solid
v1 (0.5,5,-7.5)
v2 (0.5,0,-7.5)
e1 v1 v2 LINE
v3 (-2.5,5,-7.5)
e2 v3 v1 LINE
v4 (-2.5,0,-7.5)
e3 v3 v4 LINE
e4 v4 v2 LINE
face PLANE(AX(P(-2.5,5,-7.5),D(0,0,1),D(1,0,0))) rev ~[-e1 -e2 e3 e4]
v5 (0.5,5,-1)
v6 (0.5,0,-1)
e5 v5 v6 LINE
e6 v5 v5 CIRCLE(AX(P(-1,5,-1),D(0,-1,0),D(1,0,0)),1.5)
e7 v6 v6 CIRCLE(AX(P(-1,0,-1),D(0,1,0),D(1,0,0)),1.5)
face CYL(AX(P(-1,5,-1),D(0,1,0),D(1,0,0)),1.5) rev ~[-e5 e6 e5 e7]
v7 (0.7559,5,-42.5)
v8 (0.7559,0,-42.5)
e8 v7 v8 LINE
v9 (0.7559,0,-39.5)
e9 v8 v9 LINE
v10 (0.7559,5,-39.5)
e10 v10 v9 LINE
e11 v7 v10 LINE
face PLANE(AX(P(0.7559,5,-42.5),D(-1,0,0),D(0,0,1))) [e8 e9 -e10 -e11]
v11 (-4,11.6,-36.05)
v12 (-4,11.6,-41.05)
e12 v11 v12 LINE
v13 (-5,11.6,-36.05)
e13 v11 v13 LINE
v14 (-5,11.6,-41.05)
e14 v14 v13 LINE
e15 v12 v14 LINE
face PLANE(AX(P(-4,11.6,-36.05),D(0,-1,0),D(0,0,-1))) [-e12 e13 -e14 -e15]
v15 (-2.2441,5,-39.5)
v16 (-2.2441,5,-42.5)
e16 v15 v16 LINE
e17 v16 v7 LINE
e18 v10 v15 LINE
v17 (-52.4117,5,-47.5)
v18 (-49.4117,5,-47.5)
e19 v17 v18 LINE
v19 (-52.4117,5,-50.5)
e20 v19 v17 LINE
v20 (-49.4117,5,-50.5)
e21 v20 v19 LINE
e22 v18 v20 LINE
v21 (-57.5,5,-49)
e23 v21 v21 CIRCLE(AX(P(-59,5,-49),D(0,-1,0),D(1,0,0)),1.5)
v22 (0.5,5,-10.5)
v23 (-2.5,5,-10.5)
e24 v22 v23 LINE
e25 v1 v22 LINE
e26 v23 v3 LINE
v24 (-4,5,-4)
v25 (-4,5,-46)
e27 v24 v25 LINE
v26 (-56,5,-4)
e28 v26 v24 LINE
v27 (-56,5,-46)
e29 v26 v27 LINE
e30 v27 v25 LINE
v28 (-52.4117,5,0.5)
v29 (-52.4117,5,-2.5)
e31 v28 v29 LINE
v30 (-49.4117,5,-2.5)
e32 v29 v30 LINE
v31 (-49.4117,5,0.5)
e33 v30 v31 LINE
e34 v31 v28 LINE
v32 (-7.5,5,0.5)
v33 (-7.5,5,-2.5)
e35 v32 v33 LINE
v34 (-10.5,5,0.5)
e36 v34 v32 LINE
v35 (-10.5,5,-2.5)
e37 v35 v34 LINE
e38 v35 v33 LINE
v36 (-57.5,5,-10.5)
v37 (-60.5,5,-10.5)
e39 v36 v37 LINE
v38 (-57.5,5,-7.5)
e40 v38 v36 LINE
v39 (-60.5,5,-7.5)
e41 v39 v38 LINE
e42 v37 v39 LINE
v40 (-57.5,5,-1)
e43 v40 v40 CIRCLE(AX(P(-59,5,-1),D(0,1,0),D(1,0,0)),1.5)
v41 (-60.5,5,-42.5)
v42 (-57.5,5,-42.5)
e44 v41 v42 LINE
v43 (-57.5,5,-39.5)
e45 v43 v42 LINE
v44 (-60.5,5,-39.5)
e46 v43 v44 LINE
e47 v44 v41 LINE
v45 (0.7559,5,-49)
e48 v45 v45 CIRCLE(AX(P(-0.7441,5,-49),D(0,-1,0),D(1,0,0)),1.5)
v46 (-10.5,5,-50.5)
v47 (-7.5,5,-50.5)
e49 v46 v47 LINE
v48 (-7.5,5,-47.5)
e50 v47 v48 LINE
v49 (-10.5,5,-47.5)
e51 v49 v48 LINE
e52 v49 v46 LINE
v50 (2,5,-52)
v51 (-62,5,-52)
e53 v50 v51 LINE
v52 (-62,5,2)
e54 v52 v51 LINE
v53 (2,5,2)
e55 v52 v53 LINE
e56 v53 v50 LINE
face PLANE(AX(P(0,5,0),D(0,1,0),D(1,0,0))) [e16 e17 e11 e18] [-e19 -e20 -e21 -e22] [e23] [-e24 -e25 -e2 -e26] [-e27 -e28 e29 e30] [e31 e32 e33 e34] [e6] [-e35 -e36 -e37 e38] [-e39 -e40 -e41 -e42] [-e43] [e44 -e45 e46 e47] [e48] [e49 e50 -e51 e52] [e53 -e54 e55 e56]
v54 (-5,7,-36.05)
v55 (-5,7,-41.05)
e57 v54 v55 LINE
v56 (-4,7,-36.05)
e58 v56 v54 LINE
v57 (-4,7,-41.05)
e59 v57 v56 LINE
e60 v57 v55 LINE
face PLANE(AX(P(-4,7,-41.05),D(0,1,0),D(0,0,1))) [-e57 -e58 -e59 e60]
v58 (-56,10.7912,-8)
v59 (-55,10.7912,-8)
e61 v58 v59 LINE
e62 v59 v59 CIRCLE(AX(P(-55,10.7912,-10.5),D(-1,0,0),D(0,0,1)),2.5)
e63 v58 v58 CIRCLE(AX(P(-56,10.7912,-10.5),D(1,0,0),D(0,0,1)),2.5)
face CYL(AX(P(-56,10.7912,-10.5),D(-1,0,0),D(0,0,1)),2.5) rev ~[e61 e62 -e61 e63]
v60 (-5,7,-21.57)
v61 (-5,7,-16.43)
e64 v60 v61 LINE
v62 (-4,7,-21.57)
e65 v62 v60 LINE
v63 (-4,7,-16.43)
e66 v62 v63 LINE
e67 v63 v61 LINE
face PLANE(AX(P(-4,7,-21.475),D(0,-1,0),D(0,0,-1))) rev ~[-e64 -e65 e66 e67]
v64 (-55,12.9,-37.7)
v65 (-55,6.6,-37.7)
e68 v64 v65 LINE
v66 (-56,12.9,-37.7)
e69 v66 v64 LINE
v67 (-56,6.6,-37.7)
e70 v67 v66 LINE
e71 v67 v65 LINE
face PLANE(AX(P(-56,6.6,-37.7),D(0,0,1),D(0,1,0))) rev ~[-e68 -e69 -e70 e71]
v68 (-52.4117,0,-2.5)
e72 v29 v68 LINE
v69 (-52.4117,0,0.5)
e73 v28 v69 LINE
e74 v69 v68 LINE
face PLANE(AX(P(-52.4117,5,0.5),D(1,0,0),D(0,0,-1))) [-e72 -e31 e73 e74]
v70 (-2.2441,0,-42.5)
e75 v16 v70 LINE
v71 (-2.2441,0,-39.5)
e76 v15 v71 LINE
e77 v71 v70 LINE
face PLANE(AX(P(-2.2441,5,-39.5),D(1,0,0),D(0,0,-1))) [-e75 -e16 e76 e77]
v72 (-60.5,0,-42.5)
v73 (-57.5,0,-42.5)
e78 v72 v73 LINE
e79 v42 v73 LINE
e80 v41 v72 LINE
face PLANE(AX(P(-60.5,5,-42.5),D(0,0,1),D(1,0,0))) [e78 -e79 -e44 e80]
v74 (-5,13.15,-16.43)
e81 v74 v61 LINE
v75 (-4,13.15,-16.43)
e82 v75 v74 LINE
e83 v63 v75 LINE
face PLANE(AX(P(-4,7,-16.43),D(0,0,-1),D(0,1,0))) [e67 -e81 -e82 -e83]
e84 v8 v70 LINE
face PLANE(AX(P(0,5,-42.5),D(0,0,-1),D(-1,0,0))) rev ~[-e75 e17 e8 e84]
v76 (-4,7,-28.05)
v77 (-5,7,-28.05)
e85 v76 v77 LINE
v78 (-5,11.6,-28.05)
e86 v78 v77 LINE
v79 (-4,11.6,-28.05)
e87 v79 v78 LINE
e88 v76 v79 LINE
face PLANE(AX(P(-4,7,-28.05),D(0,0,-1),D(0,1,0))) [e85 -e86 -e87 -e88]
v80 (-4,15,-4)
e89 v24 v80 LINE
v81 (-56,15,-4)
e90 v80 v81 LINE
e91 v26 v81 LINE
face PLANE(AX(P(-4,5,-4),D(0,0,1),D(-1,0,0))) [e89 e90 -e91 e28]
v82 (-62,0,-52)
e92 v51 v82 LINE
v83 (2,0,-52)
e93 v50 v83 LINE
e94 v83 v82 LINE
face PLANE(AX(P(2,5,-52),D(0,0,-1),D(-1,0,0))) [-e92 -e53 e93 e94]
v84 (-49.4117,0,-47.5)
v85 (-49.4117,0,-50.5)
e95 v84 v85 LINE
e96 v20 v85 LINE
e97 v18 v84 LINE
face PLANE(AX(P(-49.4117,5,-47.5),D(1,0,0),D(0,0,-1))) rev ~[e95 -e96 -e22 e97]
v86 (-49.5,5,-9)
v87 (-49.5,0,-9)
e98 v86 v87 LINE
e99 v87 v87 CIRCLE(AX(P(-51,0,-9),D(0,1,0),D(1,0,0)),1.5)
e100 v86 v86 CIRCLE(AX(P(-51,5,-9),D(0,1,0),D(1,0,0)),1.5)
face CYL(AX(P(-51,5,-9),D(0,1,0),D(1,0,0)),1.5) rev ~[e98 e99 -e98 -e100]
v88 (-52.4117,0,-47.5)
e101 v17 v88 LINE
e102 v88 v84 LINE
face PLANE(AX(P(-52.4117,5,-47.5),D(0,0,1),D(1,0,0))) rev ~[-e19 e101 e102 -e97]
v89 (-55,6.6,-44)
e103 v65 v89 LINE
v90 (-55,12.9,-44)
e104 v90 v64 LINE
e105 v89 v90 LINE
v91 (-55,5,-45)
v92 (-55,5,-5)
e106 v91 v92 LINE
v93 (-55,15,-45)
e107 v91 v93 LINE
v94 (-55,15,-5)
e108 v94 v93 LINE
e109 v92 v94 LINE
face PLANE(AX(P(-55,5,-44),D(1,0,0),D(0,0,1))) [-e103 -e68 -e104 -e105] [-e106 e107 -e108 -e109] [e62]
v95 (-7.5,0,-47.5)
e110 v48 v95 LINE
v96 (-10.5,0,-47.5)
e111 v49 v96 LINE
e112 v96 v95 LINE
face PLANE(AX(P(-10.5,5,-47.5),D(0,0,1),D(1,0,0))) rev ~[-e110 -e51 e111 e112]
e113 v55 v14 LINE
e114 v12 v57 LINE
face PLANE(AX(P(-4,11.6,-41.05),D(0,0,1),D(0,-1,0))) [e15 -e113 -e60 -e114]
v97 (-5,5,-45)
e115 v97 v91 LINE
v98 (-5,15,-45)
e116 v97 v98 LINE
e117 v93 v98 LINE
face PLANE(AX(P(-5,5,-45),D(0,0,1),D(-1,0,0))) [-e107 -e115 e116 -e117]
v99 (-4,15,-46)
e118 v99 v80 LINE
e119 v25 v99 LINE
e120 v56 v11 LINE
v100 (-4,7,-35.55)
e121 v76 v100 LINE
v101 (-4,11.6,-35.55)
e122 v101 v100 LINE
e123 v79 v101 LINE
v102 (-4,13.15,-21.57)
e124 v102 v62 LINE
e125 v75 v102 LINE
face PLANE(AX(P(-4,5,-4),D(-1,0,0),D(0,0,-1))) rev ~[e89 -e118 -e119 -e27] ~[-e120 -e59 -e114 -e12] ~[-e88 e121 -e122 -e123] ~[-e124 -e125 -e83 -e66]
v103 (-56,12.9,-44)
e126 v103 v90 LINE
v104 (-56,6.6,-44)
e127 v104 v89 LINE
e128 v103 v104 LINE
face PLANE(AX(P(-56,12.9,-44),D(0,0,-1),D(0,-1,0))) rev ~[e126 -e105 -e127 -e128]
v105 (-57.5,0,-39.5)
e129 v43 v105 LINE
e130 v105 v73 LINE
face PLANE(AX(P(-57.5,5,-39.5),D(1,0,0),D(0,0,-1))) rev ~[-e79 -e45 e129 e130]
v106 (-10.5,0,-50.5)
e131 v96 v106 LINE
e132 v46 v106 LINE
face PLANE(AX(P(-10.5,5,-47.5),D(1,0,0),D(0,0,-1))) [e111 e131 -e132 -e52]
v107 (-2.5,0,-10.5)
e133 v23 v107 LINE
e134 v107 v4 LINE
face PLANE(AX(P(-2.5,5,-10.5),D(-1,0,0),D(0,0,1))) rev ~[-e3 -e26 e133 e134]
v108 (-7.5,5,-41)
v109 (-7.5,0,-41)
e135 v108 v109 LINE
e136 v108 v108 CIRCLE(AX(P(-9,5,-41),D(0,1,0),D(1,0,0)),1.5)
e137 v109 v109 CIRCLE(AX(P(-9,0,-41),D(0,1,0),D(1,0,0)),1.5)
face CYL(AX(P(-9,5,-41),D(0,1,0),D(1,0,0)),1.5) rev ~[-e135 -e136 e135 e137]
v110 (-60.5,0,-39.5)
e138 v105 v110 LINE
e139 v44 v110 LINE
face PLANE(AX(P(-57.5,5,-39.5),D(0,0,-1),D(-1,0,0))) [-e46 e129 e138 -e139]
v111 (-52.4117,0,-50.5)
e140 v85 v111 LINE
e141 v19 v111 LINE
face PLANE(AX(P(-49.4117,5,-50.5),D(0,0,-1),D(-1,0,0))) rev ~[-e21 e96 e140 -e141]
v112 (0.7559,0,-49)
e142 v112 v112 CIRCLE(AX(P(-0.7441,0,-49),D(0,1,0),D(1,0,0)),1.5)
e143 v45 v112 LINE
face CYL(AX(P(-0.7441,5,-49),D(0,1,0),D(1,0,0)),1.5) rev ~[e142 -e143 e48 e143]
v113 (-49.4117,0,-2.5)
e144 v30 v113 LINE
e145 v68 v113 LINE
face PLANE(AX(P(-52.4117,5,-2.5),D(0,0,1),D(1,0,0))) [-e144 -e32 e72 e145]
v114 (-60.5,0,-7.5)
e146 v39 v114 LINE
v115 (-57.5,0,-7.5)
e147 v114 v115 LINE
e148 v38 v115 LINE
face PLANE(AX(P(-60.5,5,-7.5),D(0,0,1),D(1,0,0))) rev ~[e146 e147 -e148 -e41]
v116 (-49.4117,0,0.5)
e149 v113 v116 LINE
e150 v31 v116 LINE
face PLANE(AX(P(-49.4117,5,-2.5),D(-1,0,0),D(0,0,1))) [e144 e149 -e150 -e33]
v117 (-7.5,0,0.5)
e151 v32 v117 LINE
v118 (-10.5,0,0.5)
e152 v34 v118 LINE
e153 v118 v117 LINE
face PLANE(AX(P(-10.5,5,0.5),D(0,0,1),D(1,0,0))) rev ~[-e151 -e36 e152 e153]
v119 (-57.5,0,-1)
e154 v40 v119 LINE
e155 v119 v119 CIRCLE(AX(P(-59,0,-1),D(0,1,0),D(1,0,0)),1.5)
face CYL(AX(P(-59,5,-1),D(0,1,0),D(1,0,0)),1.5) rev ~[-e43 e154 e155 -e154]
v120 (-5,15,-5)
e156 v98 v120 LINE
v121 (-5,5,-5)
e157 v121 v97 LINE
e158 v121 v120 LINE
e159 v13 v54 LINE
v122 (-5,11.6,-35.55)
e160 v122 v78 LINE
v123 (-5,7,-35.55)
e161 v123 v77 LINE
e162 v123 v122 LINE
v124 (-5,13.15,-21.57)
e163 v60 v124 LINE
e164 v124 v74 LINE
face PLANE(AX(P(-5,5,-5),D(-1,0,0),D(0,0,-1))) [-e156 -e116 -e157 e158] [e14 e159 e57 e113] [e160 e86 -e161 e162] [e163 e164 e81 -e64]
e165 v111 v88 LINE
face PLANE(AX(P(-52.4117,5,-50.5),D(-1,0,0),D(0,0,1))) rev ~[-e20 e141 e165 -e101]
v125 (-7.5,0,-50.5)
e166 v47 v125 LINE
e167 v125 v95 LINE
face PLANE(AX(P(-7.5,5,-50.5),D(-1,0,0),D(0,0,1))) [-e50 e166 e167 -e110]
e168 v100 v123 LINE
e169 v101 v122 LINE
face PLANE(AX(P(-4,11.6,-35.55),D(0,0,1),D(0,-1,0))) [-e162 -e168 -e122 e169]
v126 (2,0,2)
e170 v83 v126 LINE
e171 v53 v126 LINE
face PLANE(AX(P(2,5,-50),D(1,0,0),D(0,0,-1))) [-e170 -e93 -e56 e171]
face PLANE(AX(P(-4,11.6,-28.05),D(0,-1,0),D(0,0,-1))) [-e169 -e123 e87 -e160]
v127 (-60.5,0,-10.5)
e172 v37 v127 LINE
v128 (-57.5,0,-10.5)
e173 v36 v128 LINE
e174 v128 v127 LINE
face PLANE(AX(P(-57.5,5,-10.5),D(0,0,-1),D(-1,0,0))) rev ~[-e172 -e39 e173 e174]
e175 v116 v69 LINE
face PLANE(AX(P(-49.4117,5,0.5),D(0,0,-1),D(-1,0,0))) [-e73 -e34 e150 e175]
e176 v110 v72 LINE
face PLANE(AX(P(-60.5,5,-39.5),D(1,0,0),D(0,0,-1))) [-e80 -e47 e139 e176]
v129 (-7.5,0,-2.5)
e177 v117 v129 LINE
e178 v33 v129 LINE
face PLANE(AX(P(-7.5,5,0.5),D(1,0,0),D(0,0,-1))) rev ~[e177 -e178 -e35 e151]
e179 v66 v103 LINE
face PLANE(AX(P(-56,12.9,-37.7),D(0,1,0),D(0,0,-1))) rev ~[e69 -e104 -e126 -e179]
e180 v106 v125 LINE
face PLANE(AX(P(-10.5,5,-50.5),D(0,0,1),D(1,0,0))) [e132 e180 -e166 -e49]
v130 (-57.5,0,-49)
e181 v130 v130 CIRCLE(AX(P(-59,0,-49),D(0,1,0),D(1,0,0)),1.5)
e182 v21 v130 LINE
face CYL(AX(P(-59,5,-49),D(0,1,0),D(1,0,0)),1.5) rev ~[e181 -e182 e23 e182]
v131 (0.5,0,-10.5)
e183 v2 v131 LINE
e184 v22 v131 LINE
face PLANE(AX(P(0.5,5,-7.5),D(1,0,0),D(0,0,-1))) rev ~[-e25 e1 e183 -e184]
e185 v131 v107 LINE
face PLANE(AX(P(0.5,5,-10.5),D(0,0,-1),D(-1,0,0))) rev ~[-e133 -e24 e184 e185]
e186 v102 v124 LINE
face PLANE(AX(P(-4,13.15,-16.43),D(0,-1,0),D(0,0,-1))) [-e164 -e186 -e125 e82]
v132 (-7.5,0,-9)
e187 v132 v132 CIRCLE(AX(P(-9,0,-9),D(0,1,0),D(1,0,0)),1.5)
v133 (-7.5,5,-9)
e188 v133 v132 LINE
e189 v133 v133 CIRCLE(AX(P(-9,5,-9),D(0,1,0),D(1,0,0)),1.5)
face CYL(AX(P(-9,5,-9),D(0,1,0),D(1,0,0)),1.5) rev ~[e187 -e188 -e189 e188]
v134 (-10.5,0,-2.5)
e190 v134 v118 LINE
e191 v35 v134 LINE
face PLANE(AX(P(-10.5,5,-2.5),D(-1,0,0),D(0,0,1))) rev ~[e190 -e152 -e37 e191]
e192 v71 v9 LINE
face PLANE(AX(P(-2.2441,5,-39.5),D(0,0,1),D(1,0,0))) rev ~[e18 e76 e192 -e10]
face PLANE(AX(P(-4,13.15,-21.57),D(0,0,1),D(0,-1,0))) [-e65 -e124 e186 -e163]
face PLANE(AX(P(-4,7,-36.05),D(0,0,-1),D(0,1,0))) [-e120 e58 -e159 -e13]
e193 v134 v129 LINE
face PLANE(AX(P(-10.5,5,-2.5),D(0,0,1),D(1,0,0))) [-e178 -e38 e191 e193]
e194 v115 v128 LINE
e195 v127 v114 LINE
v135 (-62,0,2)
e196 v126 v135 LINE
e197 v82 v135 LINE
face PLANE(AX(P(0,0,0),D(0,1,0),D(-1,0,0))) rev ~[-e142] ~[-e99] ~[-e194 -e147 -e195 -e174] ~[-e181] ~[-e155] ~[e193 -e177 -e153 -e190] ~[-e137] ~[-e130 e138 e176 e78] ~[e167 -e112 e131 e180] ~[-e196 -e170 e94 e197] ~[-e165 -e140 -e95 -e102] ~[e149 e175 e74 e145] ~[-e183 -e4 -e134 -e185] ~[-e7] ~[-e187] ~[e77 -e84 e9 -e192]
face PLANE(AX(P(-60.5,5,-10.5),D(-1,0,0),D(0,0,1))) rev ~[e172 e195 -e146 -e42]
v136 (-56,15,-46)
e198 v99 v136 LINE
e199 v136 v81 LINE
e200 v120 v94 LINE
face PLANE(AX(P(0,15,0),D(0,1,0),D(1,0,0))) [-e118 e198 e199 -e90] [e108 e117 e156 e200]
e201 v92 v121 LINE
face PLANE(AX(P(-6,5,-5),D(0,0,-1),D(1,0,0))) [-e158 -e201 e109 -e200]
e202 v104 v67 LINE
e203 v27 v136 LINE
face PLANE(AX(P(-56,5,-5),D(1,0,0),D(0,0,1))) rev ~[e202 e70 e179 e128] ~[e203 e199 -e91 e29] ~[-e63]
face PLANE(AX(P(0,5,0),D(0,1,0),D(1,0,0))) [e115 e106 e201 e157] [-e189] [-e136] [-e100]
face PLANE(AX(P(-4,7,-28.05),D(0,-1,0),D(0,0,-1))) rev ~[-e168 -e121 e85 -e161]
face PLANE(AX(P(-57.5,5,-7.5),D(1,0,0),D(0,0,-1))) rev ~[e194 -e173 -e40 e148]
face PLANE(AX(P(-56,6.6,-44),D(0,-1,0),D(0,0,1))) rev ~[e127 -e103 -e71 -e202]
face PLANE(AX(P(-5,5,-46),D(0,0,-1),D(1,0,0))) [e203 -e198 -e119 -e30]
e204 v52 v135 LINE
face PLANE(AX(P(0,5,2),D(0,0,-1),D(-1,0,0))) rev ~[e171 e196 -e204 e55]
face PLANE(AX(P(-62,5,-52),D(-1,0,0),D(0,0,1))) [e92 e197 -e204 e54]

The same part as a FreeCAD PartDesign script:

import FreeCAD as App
import Part
import Sketcher
Q = App.Units.Quantity

doc = App.newDocument("Part")
body = doc.addObject("PartDesign::Body", "Body")

# Sketch on XZ plane
sketch1 = body.newObject("Sketcher::SketchObject", "Sketch")
sketch1.AttachmentSupport = (doc.getObject("XZ_Plane"), [""])
sketch1.MapMode = "FlatFace"
sketch1.addGeometry([
    Part.LineSegment(App.Vector(0, 0, 0), App.Vector(0, -50, 0)),
    Part.LineSegment(App.Vector(0, -50, 0), App.Vector(-60, -50, 0)),
    Part.LineSegment(App.Vector(-60, -50, 0), App.Vector(-60, 0, 0)),
    Part.LineSegment(App.Vector(-60, 0, 0), App.Vector(0, 0, 0)),
], False)
sketch1.addConstraint([
    Sketcher.Constraint("Coincident", 0, 2, 1, 1),
    Sketcher.Constraint("Coincident", 1, 2, 2, 1),
    Sketcher.Constraint("Coincident", 2, 2, 3, 1),
    Sketcher.Constraint("Coincident", 3, 2, 0, 1),
    Sketcher.Constraint("Vertical", 0),
    Sketcher.Constraint("Horizontal", 1),
    Sketcher.Constraint("Vertical", 2),
    Sketcher.Constraint("Horizontal", 3),
    Sketcher.Constraint("Coincident", 3, 2, -1, 1),
    Sketcher.Constraint("DistanceX", 1, 2, 1, 1, Q("60 mm")),
    Sketcher.Constraint("DistanceY", 0, 2, 0, 1, Q("50 mm")),
])
pad1 = body.newObject("PartDesign::Pad", "Pad")
pad1.Profile = sketch1
pad1.Length = 5
pad1.Reversed = True

# Sketch on XZ plane
sketch2 = body.newObject("Sketcher::SketchObject", "Sketch001")
sketch2.AttachmentSupport = (doc.getObject("XZ_Plane"), [""])
sketch2.MapMode = "FlatFace"
sketch2.AttachmentOffset = App.Placement(App.Vector(0, 0, -5), App.Rotation())
sketch2.addGeometry([
    Part.LineSegment(App.Vector(-62, -52, 0), App.Vector(-62, 2, 0)),  # 0
    Part.LineSegment(App.Vector(-62, 2, 0), App.Vector(2, 2, 0)),  # 1
    Part.LineSegment(App.Vector(2, 2, 0), App.Vector(2, -52, 0)),  # 2
    Part.LineSegment(App.Vector(2, -52, 0), App.Vector(-62, -52, 0)),  # 3
    Part.LineSegment(App.Vector(0, -50, 0), App.Vector(0, 0, 0)),  # 4
    Part.LineSegment(App.Vector(0, 0, 0), App.Vector(-60, 0, 0)),  # 5
    Part.LineSegment(App.Vector(-60, 0, 0), App.Vector(-60, -50, 0)),  # 6
    Part.LineSegment(App.Vector(-60, -50, 0), App.Vector(0, -50, 0)),  # 7
], False)
sketch2.addConstraint([
    Sketcher.Constraint("Coincident", 0, 2, 1, 1),
    Sketcher.Constraint("Coincident", 1, 2, 2, 1),
    Sketcher.Constraint("Coincident", 2, 2, 3, 1),
    Sketcher.Constraint("Coincident", 3, 2, 0, 1),
    Sketcher.Constraint("Coincident", 4, 2, 5, 1),
    Sketcher.Constraint("Coincident", 5, 2, 6, 1),
    Sketcher.Constraint("Coincident", 6, 2, 7, 1),
    Sketcher.Constraint("Coincident", 7, 2, 4, 1),
    Sketcher.Constraint("Vertical", 0),
    Sketcher.Constraint("Horizontal", 1),
    Sketcher.Constraint("Vertical", 2),
    Sketcher.Constraint("Horizontal", 3),
    Sketcher.Constraint("Vertical", 4),
    Sketcher.Constraint("Horizontal", 5),
    Sketcher.Constraint("Vertical", 6),
    Sketcher.Constraint("Horizontal", 7),
    Sketcher.Constraint("Coincident", 4, 2, -1, 1),
    Sketcher.Constraint("DistanceX", 1, 1, 1, 2, Q("64 mm")),
    Sketcher.Constraint("DistanceY", -1, 1, 0, 2, Q("2 mm")),
    Sketcher.Constraint("DistanceX", -1, 1, 1, 2, Q("2 mm")),
    Sketcher.Constraint("DistanceX", 0, 2, 5, 2, Q("2 mm")),
    Sketcher.Constraint("DistanceY", 3, 2, 6, 2, Q("2 mm")),
    Sketcher.Constraint("DistanceY", 0, 1, 0, 2, Q("54 mm")),
])
pad2 = body.newObject("PartDesign::Pad", "Pad001")
pad2.Profile = sketch2
pad2.Length = 5

# Sketch on XZ plane
sketch3 = body.newObject("Sketcher::SketchObject", "Sketch002")
sketch3.AttachmentSupport = (doc.getObject("XZ_Plane"), [""])
sketch3.MapMode = "FlatFace"
sketch3.AttachmentOffset = App.Placement(App.Vector(0, 0, -5), App.Rotation())
sketch3.addGeometry([
    Part.LineSegment(App.Vector(-4, -4, 0), App.Vector(-4, -46, 0)),  # 0
    Part.LineSegment(App.Vector(-4, -46, 0), App.Vector(-56, -46, 0)),  # 1
    Part.LineSegment(App.Vector(-56, -46, 0), App.Vector(-56, -4, 0)),  # 2
    Part.LineSegment(App.Vector(-56, -4, 0), App.Vector(-4, -4, 0)),  # 3
    Part.LineSegment(App.Vector(-5, -5, 0), App.Vector(-55, -5, 0)),  # 4
    Part.LineSegment(App.Vector(-55, -5, 0), App.Vector(-55, -45, 0)),  # 5
    Part.LineSegment(App.Vector(-55, -45, 0), App.Vector(-5, -45, 0)),  # 6
    Part.LineSegment(App.Vector(-5, -45, 0), App.Vector(-5, -5, 0)),  # 7
], False)
sketch3.addConstraint([
    Sketcher.Constraint("Coincident", 0, 2, 1, 1),
    Sketcher.Constraint("Coincident", 1, 2, 2, 1),
    Sketcher.Constraint("Coincident", 2, 2, 3, 1),
    Sketcher.Constraint("Coincident", 3, 2, 0, 1),
    Sketcher.Constraint("Coincident", 4, 2, 5, 1),
    Sketcher.Constraint("Coincident", 5, 2, 6, 1),
    Sketcher.Constraint("Coincident", 6, 2, 7, 1),
    Sketcher.Constraint("Coincident", 7, 2, 4, 1),
    Sketcher.Constraint("Vertical", 0),
    Sketcher.Constraint("Horizontal", 1),
    Sketcher.Constraint("Vertical", 2),
    Sketcher.Constraint("Horizontal", 3),
    Sketcher.Constraint("Horizontal", 4),
    Sketcher.Constraint("Vertical", 5),
    Sketcher.Constraint("Horizontal", 6),
    Sketcher.Constraint("Vertical", 7),
    Sketcher.Constraint("DistanceX", 4, 2, 4, 1, Q("50 mm")),
    Sketcher.Constraint("DistanceY", 5, 2, 5, 1, Q("40 mm")),
    Sketcher.Constraint("DistanceY", 1, 2, 4, 2, Q("41 mm")),
    Sketcher.Constraint("DistanceX", 4, 2, 3, 2, Q("51 mm")),
    Sketcher.Constraint("DistanceY", 5, 2, 2, 2, Q("41 mm")),
    Sketcher.Constraint("DistanceX", 1, 2, 6, 2, Q("51 mm")),
    Sketcher.Constraint("DistanceX", 0, 2, -1, 1, Q("4 mm")),
    Sketcher.Constraint("DistanceY", 0, 2, -1, 1, Q("46 mm")),
])
pad3 = body.newObject("PartDesign::Pad", "Pad002")
pad3.Profile = sketch3
pad3.Length = 10
pad3.Reversed = True

# Sketch on XZ plane
sketch4 = body.newObject("Sketcher::SketchObject", "Sketch003")
sketch4.AttachmentSupport = (doc.getObject("XZ_Plane"), [""])
sketch4.MapMode = "FlatFace"
sketch4.AttachmentOffset = App.Placement(App.Vector(0, 0, -5), App.Rotation())
sketch4.addGeometry([
    Part.Circle(App.Vector(-51, -9, 0), App.Vector(0, 0, 1), 1.5),
    Part.Circle(App.Vector(-9, -41, 0), App.Vector(0, 0, 1), 1.5),
    Part.Circle(App.Vector(-9, -9, 0), App.Vector(0, 0, 1), 1.5),
], False)
sketch4.addConstraint([
    Sketcher.Constraint("Equal", 0, 1),
    Sketcher.Constraint("Equal", 1, 2),
    Sketcher.Constraint("Horizontal", 0, 3, 2, 3),
    Sketcher.Constraint("Vertical", 1, 3, 2, 3),
    Sketcher.Constraint("Diameter", 0, Q("3 mm")),
    Sketcher.Constraint("DistanceX", 0, 3, -1, 1, Q("51 mm")),
    Sketcher.Constraint("DistanceY", 0, 3, -1, 1, Q("9 mm")),
    Sketcher.Constraint("DistanceX", 1, 3, -1, 1, Q("9 mm")),
    Sketcher.Constraint("DistanceY", 1, 3, -1, 1, Q("41 mm")),
])
pocket1 = body.newObject("PartDesign::Pocket", "Pocket")
pocket1.Profile = sketch4
pocket1.Length = 10
pocket1.Reversed = True

# Sketch on YZ plane
sketch5 = body.newObject("Sketcher::SketchObject", "Sketch004")
sketch5.AttachmentSupport = (doc.getObject("YZ_Plane"), [""])
sketch5.MapMode = "FlatFace"
sketch5.AttachmentOffset = App.Placement(App.Vector(0, 0, -4), App.Rotation())
sketch5.addGeometry([
    Part.LineSegment(App.Vector(13.15, -16.43, 0), App.Vector(7, -16.43, 0)),  # 0
    Part.LineSegment(App.Vector(7, -16.43, 0), App.Vector(7, -21.57, 0)),  # 1
    Part.LineSegment(App.Vector(7, -21.57, 0), App.Vector(13.15, -21.57, 0)),  # 2
    Part.LineSegment(App.Vector(13.15, -21.57, 0), App.Vector(13.15, -16.43, 0)),  # 3
    Part.LineSegment(App.Vector(11.6, -28.05, 0), App.Vector(7, -28.05, 0)),  # 4
    Part.LineSegment(App.Vector(7, -28.05, 0), App.Vector(7, -35.55, 0)),  # 5
    Part.LineSegment(App.Vector(7, -35.55, 0), App.Vector(11.6, -35.55, 0)),  # 6
    Part.LineSegment(App.Vector(11.6, -35.55, 0), App.Vector(11.6, -28.05, 0)),  # 7
    Part.LineSegment(App.Vector(11.6, -36.05, 0), App.Vector(7, -36.05, 0)),  # 8
    Part.LineSegment(App.Vector(7, -36.05, 0), App.Vector(7, -41.05, 0)),  # 9
    Part.LineSegment(App.Vector(7, -41.05, 0), App.Vector(11.6, -41.05, 0)),  # 10
    Part.LineSegment(App.Vector(11.6, -41.05, 0), App.Vector(11.6, -36.05, 0)),  # 11
], False)
sketch5.addConstraint([
    Sketcher.Constraint("Coincident", 0, 2, 1, 1),
    Sketcher.Constraint("Coincident", 1, 2, 2, 1),
    Sketcher.Constraint("Coincident", 2, 2, 3, 1),
    Sketcher.Constraint("Coincident", 3, 2, 0, 1),
    Sketcher.Constraint("Coincident", 4, 2, 5, 1),
    Sketcher.Constraint("Coincident", 5, 2, 6, 1),
    Sketcher.Constraint("Coincident", 6, 2, 7, 1),
    Sketcher.Constraint("Coincident", 7, 2, 4, 1),
    Sketcher.Constraint("Coincident", 8, 2, 9, 1),
    Sketcher.Constraint("Coincident", 9, 2, 10, 1),
    Sketcher.Constraint("Coincident", 10, 2, 11, 1),
    Sketcher.Constraint("Coincident", 11, 2, 8, 1),
    Sketcher.Constraint("Horizontal", 0),
    Sketcher.Constraint("Vertical", 1),
    Sketcher.Constraint("Horizontal", 2),
    Sketcher.Constraint("Vertical", 3),
    Sketcher.Constraint("Horizontal", 4),
    Sketcher.Constraint("Vertical", 5),
    Sketcher.Constraint("Horizontal", 6),
    Sketcher.Constraint("Vertical", 7),
    Sketcher.Constraint("Horizontal", 8),
    Sketcher.Constraint("Vertical", 9),
    Sketcher.Constraint("Horizontal", 10),
    Sketcher.Constraint("Vertical", 11),
    Sketcher.Constraint("Vertical", 1, 2, 4, 2),
    Sketcher.Constraint("Vertical", 5, 2, 8, 2),
    Sketcher.Constraint("Vertical", 7, 2, 10, 2),
    Sketcher.Constraint("DistanceY", 9, 2, 9, 1, Q("5 mm")),
    Sketcher.Constraint("DistanceY", 5, 2, 5, 1, Q("7.5 mm")),
    Sketcher.Constraint("DistanceY", 8, 2, 5, 2, Q("0.5 mm")),
    Sketcher.Constraint("DistanceX", 4, 2, 4, 1, Q("4.6 mm")),
    Sketcher.Constraint("DistanceX", -1, 1, 0, 2, Q("7 mm")),
    Sketcher.Constraint("DistanceX", 0, 2, 0, 1, Q("6.15 mm")),
    Sketcher.Constraint("DistanceY", 1, 2, 1, 1, Q("5.14 mm")),
    Sketcher.Constraint("DistanceY", 0, 2, -1, 1, Q("16.43 mm")),
    Sketcher.Constraint("DistanceY", 4, 2, -1, 1, Q("28.05 mm")),
])
pocket2 = body.newObject("PartDesign::Pocket", "Pocket001")
pocket2.Profile = sketch5
pocket2.Length = 10

# Sketch on YZ plane
sketch6 = body.newObject("Sketcher::SketchObject", "Sketch005")
sketch6.AttachmentSupport = (doc.getObject("YZ_Plane"), [""])
sketch6.MapMode = "FlatFace"
sketch6.AttachmentOffset = App.Placement(App.Vector(0, 0, -56), App.Rotation())
sketch6.addGeometry([
    Part.LineSegment(App.Vector(12.9, -44, 0), App.Vector(6.6, -44, 0)),
    Part.LineSegment(App.Vector(6.6, -44, 0), App.Vector(6.6, -37.7, 0)),
    Part.LineSegment(App.Vector(6.6, -37.7, 0), App.Vector(12.9, -37.7, 0)),
    Part.LineSegment(App.Vector(12.9, -37.7, 0), App.Vector(12.9, -44, 0)),
], False)
sketch6.addConstraint([
    Sketcher.Constraint("Coincident", 0, 2, 1, 1),
    Sketcher.Constraint("Coincident", 1, 2, 2, 1),
    Sketcher.Constraint("Coincident", 2, 2, 3, 1),
    Sketcher.Constraint("Coincident", 3, 2, 0, 1),
    Sketcher.Constraint("Horizontal", 0),
    Sketcher.Constraint("Vertical", 1),
    Sketcher.Constraint("Horizontal", 2),
    Sketcher.Constraint("Vertical", 3),
    Sketcher.Constraint("Equal", 2, 1),
    Sketcher.Constraint("DistanceX", 0, 2, 0, 1, Q("6.3 mm")),
    Sketcher.Constraint("DistanceY", 0, 2, -1, 1, Q("44 mm")),
    Sketcher.Constraint("DistanceX", -1, 1, 0, 2, Q("6.6 mm")),
])
pocket3 = body.newObject("PartDesign::Pocket", "Pocket002")
pocket3.Profile = sketch6
pocket3.Length = 10
pocket3.Reversed = True

# Sketch on YZ plane
sketch7 = body.newObject("Sketcher::SketchObject", "Sketch006")
sketch7.AttachmentSupport = (doc.getObject("YZ_Plane"), [""])
sketch7.MapMode = "FlatFace"
sketch7.AttachmentOffset = App.Placement(App.Vector(0, 0, -56), App.Rotation())
sketch7.addGeometry([
    Part.LineSegment(App.Vector(12.9, -44, 0), App.Vector(6.6, -44, 0)),
    Part.LineSegment(App.Vector(6.6, -44, 0), App.Vector(6.6, -37.7, 0)),
    Part.LineSegment(App.Vector(6.6, -37.7, 0), App.Vector(12.9, -37.7, 0)),
    Part.LineSegment(App.Vector(12.9, -37.7, 0), App.Vector(12.9, -44, 0)),
], False)
sketch7.addConstraint([
    Sketcher.Constraint("Coincident", 0, 2, 1, 1),
    Sketcher.Constraint("Coincident", 1, 2, 2, 1),
    Sketcher.Constraint("Coincident", 2, 2, 3, 1),
    Sketcher.Constraint("Coincident", 3, 2, 0, 1),
    Sketcher.Constraint("Horizontal", 0),
    Sketcher.Constraint("Vertical", 1),
    Sketcher.Constraint("Horizontal", 2),
    Sketcher.Constraint("Vertical", 3),
    Sketcher.Constraint("Equal", 2, 1),
    Sketcher.Constraint("DistanceX", 0, 2, 0, 1, Q("6.3 mm")),
    Sketcher.Constraint("DistanceY", 0, 2, -1, 1, Q("44 mm")),
    Sketcher.Constraint("DistanceX", -1, 1, 0, 2, Q("6.6 mm")),
])
pocket4 = body.newObject("PartDesign::Pocket", "Pocket003")
pocket4.Profile = sketch7
pocket4.Length = 10
pocket4.Reversed = True

# Sketch on YZ plane
sketch8 = body.newObject("Sketcher::SketchObject", "Sketch007")
sketch8.AttachmentSupport = (doc.getObject("YZ_Plane"), [""])
sketch8.MapMode = "FlatFace"
sketch8.AttachmentOffset = App.Placement(App.Vector(0, 0, -56), App.Rotation())
sketch8.addGeometry(Part.Circle(App.Vector(10.7912, -10.5, 0), App.Vector(0, 0, 1), 2.5), False)
sketch8.addConstraint([
    Sketcher.Constraint("Diameter", 0, Q("5 mm")),
    Sketcher.Constraint("DistanceY", 0, 3, -1, 1, Q("10.5 mm")),
    Sketcher.Constraint("DistanceX", -1, 1, 0, 3, Q("10.7912 mm")),
])
pocket5 = body.newObject("PartDesign::Pocket", "Pocket004")
pocket5.Profile = sketch8
pocket5.Length = 10
pocket5.Reversed = True

# Sketch on XZ plane
sketch9 = body.newObject("Sketcher::SketchObject", "Sketch008")
sketch9.AttachmentSupport = (doc.getObject("XZ_Plane"), [""])
sketch9.MapMode = "FlatFace"
sketch9.AttachmentOffset = App.Placement(App.Vector(0, 0, -5), App.Rotation())
sketch9.addGeometry([
    Part.Circle(App.Vector(-0.7441, -49, 0), App.Vector(0, 0, 1), 1.5),  # 0
    Part.Circle(App.Vector(-1, -1, 0), App.Vector(0, 0, 1), 1.5),  # 1
    Part.Circle(App.Vector(-59, -49, 0), App.Vector(0, 0, 1), 1.5),  # 2
    Part.LineSegment(App.Vector(-57.5, -39.5, 0), App.Vector(-57.5, -42.5, 0)),  # 3
    Part.LineSegment(App.Vector(-57.5, -42.5, 0), App.Vector(-60.5, -42.5, 0)),  # 4
    Part.LineSegment(App.Vector(-60.5, -42.5, 0), App.Vector(-60.5, -39.5, 0)),  # 5
    Part.LineSegment(App.Vector(-60.5, -39.5, 0), App.Vector(-57.5, -39.5, 0)),  # 6
    Part.LineSegment(App.Vector(-52.4117, -50.5, 0), App.Vector(-52.4117, -47.5, 0)),  # 7
    Part.LineSegment(App.Vector(-52.4117, -47.5, 0), App.Vector(-49.4117, -47.5, 0)),  # 8
    Part.LineSegment(App.Vector(-49.4117, -47.5, 0), App.Vector(-49.4117, -50.5, 0)),  # 9
    Part.LineSegment(App.Vector(-49.4117, -50.5, 0), App.Vector(-52.4117, -50.5, 0)),  # 10
    Part.LineSegment(App.Vector(-57.5, -7.5, 0), App.Vector(-57.5, -10.5, 0)),  # 11
    Part.LineSegment(App.Vector(-57.5, -10.5, 0), App.Vector(-60.5, -10.5, 0)),  # 12
    Part.LineSegment(App.Vector(-60.5, -10.5, 0), App.Vector(-60.5, -7.5, 0)),  # 13
    Part.LineSegment(App.Vector(-60.5, -7.5, 0), App.Vector(-57.5, -7.5, 0)),  # 14
    Part.LineSegment(App.Vector(-49.4117, -2.5, 0), App.Vector(-52.4117, -2.5, 0)),  # 15
    Part.LineSegment(App.Vector(-52.4117, -2.5, 0), App.Vector(-52.4117, 0.5, 0)),  # 16
    Part.LineSegment(App.Vector(-52.4117, 0.5, 0), App.Vector(-49.4117, 0.5, 0)),  # 17
    Part.LineSegment(App.Vector(-49.4117, 0.5, 0), App.Vector(-49.4117, -2.5, 0)),  # 18
    Part.Circle(App.Vector(-59, -1, 0), App.Vector(0, 0, 1), 1.5),  # 19
    Part.LineSegment(App.Vector(0.5, -10.5, 0), App.Vector(-2.5, -10.5, 0)),  # 20
    Part.LineSegment(App.Vector(-2.5, -10.5, 0), App.Vector(-2.5, -7.5, 0)),  # 21
    Part.LineSegment(App.Vector(-2.5, -7.5, 0), App.Vector(0.5, -7.5, 0)),  # 22
    Part.LineSegment(App.Vector(0.5, -7.5, 0), App.Vector(0.5, -10.5, 0)),  # 23
    Part.LineSegment(App.Vector(-7.5, 0.5, 0), App.Vector(-7.5, -2.5, 0)),  # 24
    Part.LineSegment(App.Vector(-7.5, -2.5, 0), App.Vector(-10.5, -2.5, 0)),  # 25
    Part.LineSegment(App.Vector(-10.5, -2.5, 0), App.Vector(-10.5, 0.5, 0)),  # 26
    Part.LineSegment(App.Vector(-10.5, 0.5, 0), App.Vector(-7.5, 0.5, 0)),  # 27
    Part.LineSegment(App.Vector(-2.2441, -42.5, 0), App.Vector(-2.2441, -39.5, 0)),  # 28
    Part.LineSegment(App.Vector(-2.2441, -39.5, 0), App.Vector(0.7559, -39.5, 0)),  # 29
    Part.LineSegment(App.Vector(0.7559, -39.5, 0), App.Vector(0.7559, -42.5, 0)),  # 30
    Part.LineSegment(App.Vector(0.7559, -42.5, 0), App.Vector(-2.2441, -42.5, 0)),  # 31
    Part.LineSegment(App.Vector(-10.5, -47.5, 0), App.Vector(-7.5, -47.5, 0)),  # 32
    Part.LineSegment(App.Vector(-7.5, -47.5, 0), App.Vector(-7.5, -50.5, 0)),  # 33
    Part.LineSegment(App.Vector(-7.5, -50.5, 0), App.Vector(-10.5, -50.5, 0)),  # 34
    Part.LineSegment(App.Vector(-10.5, -50.5, 0), App.Vector(-10.5, -47.5, 0)),  # 35
], False)
sketch9.addConstraint([
    Sketcher.Constraint("Coincident", 3, 2, 4, 1),
    Sketcher.Constraint("Coincident", 4, 2, 5, 1),
    Sketcher.Constraint("Coincident", 5, 2, 6, 1),
    Sketcher.Constraint("Coincident", 6, 2, 3, 1),
    Sketcher.Constraint("Coincident", 7, 2, 8, 1),
    Sketcher.Constraint("Coincident", 8, 2, 9, 1),
    Sketcher.Constraint("Coincident", 9, 2, 10, 1),
    Sketcher.Constraint("Coincident", 10, 2, 7, 1),
    Sketcher.Constraint("Coincident", 11, 2, 12, 1),
    Sketcher.Constraint("Coincident", 12, 2, 13, 1),
    Sketcher.Constraint("Coincident", 13, 2, 14, 1),
    Sketcher.Constraint("Coincident", 14, 2, 11, 1),
    Sketcher.Constraint("Coincident", 15, 2, 16, 1),
    Sketcher.Constraint("Coincident", 16, 2, 17, 1),
    Sketcher.Constraint("Coincident", 17, 2, 18, 1),
    Sketcher.Constraint("Coincident", 18, 2, 15, 1),
    Sketcher.Constraint("Coincident", 20, 2, 21, 1),
    Sketcher.Constraint("Coincident", 21, 2, 22, 1),
    Sketcher.Constraint("Coincident", 22, 2, 23, 1),
    Sketcher.Constraint("Coincident", 23, 2, 20, 1),
    Sketcher.Constraint("Coincident", 24, 2, 25, 1),
    Sketcher.Constraint("Coincident", 25, 2, 26, 1),
    Sketcher.Constraint("Coincident", 26, 2, 27, 1),
    Sketcher.Constraint("Coincident", 27, 2, 24, 1),
    Sketcher.Constraint("Coincident", 28, 2, 29, 1),
    Sketcher.Constraint("Coincident", 29, 2, 30, 1),
    Sketcher.Constraint("Coincident", 30, 2, 31, 1),
    Sketcher.Constraint("Coincident", 31, 2, 28, 1),
    Sketcher.Constraint("Coincident", 32, 2, 33, 1),
    Sketcher.Constraint("Coincident", 33, 2, 34, 1),
    Sketcher.Constraint("Coincident", 34, 2, 35, 1),
    Sketcher.Constraint("Coincident", 35, 2, 32, 1),
    Sketcher.Constraint("Vertical", 3),
    Sketcher.Constraint("Horizontal", 4),
    Sketcher.Constraint("Vertical", 5),
    Sketcher.Constraint("Horizontal", 6),
    Sketcher.Constraint("Vertical", 7),
    Sketcher.Constraint("Horizontal", 8),
    Sketcher.Constraint("Vertical", 9),
    Sketcher.Constraint("Horizontal", 10),
    Sketcher.Constraint("Vertical", 11),
    Sketcher.Constraint("Horizontal", 12),
    Sketcher.Constraint("Vertical", 13),
    Sketcher.Constraint("Horizontal", 14),
    Sketcher.Constraint("Horizontal", 15),
    Sketcher.Constraint("Vertical", 16),
    Sketcher.Constraint("Horizontal", 17),
    Sketcher.Constraint("Vertical", 18),
    Sketcher.Constraint("Horizontal", 20),
    Sketcher.Constraint("Vertical", 21),
    Sketcher.Constraint("Horizontal", 22),
    Sketcher.Constraint("Vertical", 23),
    Sketcher.Constraint("Vertical", 24),
    Sketcher.Constraint("Horizontal", 25),
    Sketcher.Constraint("Vertical", 26),
    Sketcher.Constraint("Horizontal", 27),
    Sketcher.Constraint("Vertical", 28),
    Sketcher.Constraint("Horizontal", 29),
    Sketcher.Constraint("Vertical", 30),
    Sketcher.Constraint("Horizontal", 31),
    Sketcher.Constraint("Horizontal", 32),
    Sketcher.Constraint("Vertical", 33),
    Sketcher.Constraint("Horizontal", 34),
    Sketcher.Constraint("Vertical", 35),
    Sketcher.Constraint("Equal", 0, 1),
    Sketcher.Constraint("Equal", 1, 2),
    Sketcher.Constraint("Equal", 2, 19),
    Sketcher.Constraint("Horizontal", 0, 3, 2, 3),
    Sketcher.Constraint("Horizontal", 1, 3, 19, 3),
    Sketcher.Constraint("Horizontal", 12, 2, 20, 2),
    Sketcher.Constraint("Horizontal", 14, 2, 21, 2),
    Sketcher.Constraint("Horizontal", 18, 2, 24, 2),
    Sketcher.Constraint("Horizontal", 17, 2, 26, 2),
    Sketcher.Constraint("Horizontal", 6, 2, 28, 2),
    Sketcher.Constraint("Horizontal", 4, 2, 30, 2),
    Sketcher.Constraint("Horizontal", 8, 2, 32, 2),
    Sketcher.Constraint("Horizontal", 10, 2, 33, 2),
    Sketcher.Constraint("Vertical", 2, 3, 19, 3),
    Sketcher.Constraint("Vertical", 6, 2, 11, 2),
    Sketcher.Constraint("Vertical", 5, 2, 12, 2),
    Sketcher.Constraint("Vertical", 10, 2, 15, 2),
    Sketcher.Constraint("Vertical", 9, 2, 17, 2),
    Sketcher.Constraint("Vertical", 27, 2, 32, 2),
    Sketcher.Constraint("Vertical", 26, 2, 34, 2),
    Sketcher.Constraint("Equal", 6, 8),
    Sketcher.Constraint("Equal", 17, 20),
    Sketcher.Constraint("Equal", 22, 25),
    Sketcher.Constraint("Equal", 27, 29),
    Sketcher.Constraint("Equal", 34, 3),
    Sketcher.Constraint("Equal", 5, 7),
    Sketcher.Constraint("Equal", 9, 11),
    Sketcher.Constraint("Equal", 13, 16),
    Sketcher.Constraint("Diameter", 0, Q("3 mm")),
    Sketcher.Constraint("DistanceX", 4, 2, 4, 1, Q("3 mm")),
    Sketcher.Constraint("DistanceY", 0, 3, -1, 1, Q("49 mm")),
    Sketcher.Constraint("DistanceX", 1, 3, -1, 1, Q("1 mm")),
    Sketcher.Constraint("DistanceY", 1, 3, -1, 1, Q("1 mm")),
    Sketcher.Constraint("DistanceX", 2, 3, -1, 1, Q("59 mm")),
    Sketcher.Constraint("DistanceY", 7, 2, 3, 2, Q("5 mm")),
    Sketcher.Constraint("DistanceY", 6, 2, 11, 2, Q("29 mm")),
    Sketcher.Constraint("DistanceY", 14, 2, 15, 2, Q("5 mm")),
    Sketcher.Constraint("DistanceX", 24, 2, 21, 2, Q("5 mm")),
    Sketcher.Constraint("DistanceX", 3, 2, -1, 1, Q("57.5 mm")),
    Sketcher.Constraint("DistanceY", 3, 2, -1, 1, Q("42.5 mm")),
    Sketcher.Constraint("DistanceX", 20, 2, -1, 1, Q("2.5 mm")),
    Sketcher.Constraint("DistanceX", 28, 2, 0, 3, Q("1.5 mm")),
    Sketcher.Constraint("DistanceX", 0, 3, -1, 1, Q("0.744 mm")),
    Sketcher.Constraint("DistanceX", 7, 2, -1, 1, Q("52.4117 mm")),
])
pocket6 = body.newObject("PartDesign::Pocket", "Pocket005")
pocket6.Profile = sketch9
pocket6.Length = 10
pocket6.Reversed = True

doc.recompute()
